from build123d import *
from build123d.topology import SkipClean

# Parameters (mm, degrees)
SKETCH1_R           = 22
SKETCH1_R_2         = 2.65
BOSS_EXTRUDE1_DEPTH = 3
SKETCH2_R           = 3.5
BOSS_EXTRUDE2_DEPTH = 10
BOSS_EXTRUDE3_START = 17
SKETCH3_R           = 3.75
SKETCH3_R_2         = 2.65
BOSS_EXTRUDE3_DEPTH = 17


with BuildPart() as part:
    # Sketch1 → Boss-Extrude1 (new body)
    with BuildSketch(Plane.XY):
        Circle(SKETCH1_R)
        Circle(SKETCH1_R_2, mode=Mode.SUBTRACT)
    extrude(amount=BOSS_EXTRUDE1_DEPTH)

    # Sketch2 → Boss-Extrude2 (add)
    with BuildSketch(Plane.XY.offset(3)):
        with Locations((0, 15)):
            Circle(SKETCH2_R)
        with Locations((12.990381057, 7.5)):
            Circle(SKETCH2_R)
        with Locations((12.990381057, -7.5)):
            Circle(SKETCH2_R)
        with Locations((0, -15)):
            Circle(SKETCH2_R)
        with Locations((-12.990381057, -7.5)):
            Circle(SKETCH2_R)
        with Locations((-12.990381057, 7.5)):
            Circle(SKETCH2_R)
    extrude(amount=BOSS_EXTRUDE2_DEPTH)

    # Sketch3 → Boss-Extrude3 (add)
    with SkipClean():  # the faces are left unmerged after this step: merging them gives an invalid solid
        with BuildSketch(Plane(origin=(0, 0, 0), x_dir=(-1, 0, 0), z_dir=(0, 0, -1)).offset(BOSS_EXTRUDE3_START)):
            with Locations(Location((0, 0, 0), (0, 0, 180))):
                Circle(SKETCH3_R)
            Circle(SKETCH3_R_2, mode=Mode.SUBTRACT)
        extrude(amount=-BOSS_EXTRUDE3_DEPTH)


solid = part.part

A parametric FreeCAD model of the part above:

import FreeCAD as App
import Part
import Sketcher

doc = App.newDocument("Part")
body = doc.addObject("PartDesign::Body", "Body")

# Sketch on XY plane
sketch1 = body.newObject("Sketcher::SketchObject", "Sketch")
sketch1.AttachmentSupport = (doc.getObject("XY_Plane"), [""])
sketch1.MapMode = "FlatFace"
sketch1.addGeometry([
    Part.Circle(App.Vector(0, 0, 0), App.Vector(0, 0, 1), 22),
    Part.Circle(App.Vector(0, 0, 0), App.Vector(0, 0, 1), 2.6),
], False)
sketch1.addConstraint([
    Sketcher.Constraint("Coincident", 0, 3, -1, 1),
    Sketcher.Constraint("Coincident", 1, 3, -1, 1),
    Sketcher.Constraint("Diameter", 0, 44.0),
    Sketcher.Constraint("Diameter", 1, 5.3),
])
pad1 = body.newObject("PartDesign::Pad", "Pad")
pad1.Profile = sketch1
pad1.Length = 3

# Sketch on XY plane
sketch2 = body.newObject("Sketcher::SketchObject", "Sketch001")
sketch2.AttachmentSupport = (doc.getObject("XY_Plane"), [""])
sketch2.MapMode = "FlatFace"
sketch2.AttachmentOffset = App.Placement(App.Vector(0, 0, 3), App.Rotation())
sketch2.addGeometry([
    Part.Circle(App.Vector(0, 15, 0), App.Vector(0, 0, 1), 3.5),  # 0
    Part.Circle(App.Vector(13, 7.5, 0), App.Vector(0, 0, 1), 3.5),  # 1
    Part.Circle(App.Vector(13, -7.5, 0), App.Vector(0, 0, 1), 3.5),  # 2
    Part.Circle(App.Vector(0, -15, 0), App.Vector(0, 0, 1), 3.5),  # 3
    Part.Circle(App.Vector(-13, -7.5, 0), App.Vector(0, 0, 1), 3.5),  # 4
    Part.Circle(App.Vector(-13, 7.5, 0), App.Vector(0, 0, 1), 3.5),  # 5
], False)
sketch2.addConstraint([
    Sketcher.Constraint("Equal", 0, 1),
    Sketcher.Constraint("Equal", 1, 2),
    Sketcher.Constraint("Equal", 2, 3),
    Sketcher.Constraint("Equal", 3, 4),
    Sketcher.Constraint("Equal", 4, 5),
    Sketcher.Constraint("Symmetric", 0, 3, 3, 3, -1, 1),
    Sketcher.Constraint("Symmetric", 1, 3, 4, 3, -1, 1),
    Sketcher.Constraint("Symmetric", 2, 3, 5, 3, -1, 1),
    Sketcher.Constraint("Symmetric", 2, 3, 4, 3, -2),
    Sketcher.Constraint("PointOnObject", 0, 3, -2),
    Sketcher.Constraint("Diameter", 0, 7.0),
    Sketcher.Constraint("DistanceY", -1, 1, 0, 3, 15.0),
    Sketcher.Constraint("DistanceY", 2, 3, 1, 3, 15.0),
    Sketcher.Constraint("DistanceX", -1, 1, 1, 3, 12.990381),
])
pad2 = body.newObject("PartDesign::Pad", "Pad001")
pad2.Profile = sketch2
pad2.Length = 10

# Sketch on XY plane
sketch3 = body.newObject("Sketcher::SketchObject", "Sketch002")
sketch3.AttachmentSupport = (doc.getObject("XY_Plane"), [""])
sketch3.MapMode = "FlatFace"
sketch3.AttachmentOffset = App.Placement(App.Vector(0, 0, -17), App.Rotation())
sketch3.addGeometry([
    Part.Circle(App.Vector(0, 0, 0), App.Vector(0, 0, 1), 3.8),
    Part.Circle(App.Vector(0, 0, 0), App.Vector(0, 0, 1), 2.6),
], False)
sketch3.addConstraint([
    Sketcher.Constraint("Coincident", 0, 3, -1, 1),
    Sketcher.Constraint("Coincident", 1, 3, -1, 1),
    Sketcher.Constraint("Diameter", 0, 7.5),
    Sketcher.Constraint("Diameter", 1, 5.3),
])
pad3 = body.newObject("PartDesign::Pad", "Pad002")
pad3.Profile = sketch3
pad3.Length = 17

doc.recompute()
